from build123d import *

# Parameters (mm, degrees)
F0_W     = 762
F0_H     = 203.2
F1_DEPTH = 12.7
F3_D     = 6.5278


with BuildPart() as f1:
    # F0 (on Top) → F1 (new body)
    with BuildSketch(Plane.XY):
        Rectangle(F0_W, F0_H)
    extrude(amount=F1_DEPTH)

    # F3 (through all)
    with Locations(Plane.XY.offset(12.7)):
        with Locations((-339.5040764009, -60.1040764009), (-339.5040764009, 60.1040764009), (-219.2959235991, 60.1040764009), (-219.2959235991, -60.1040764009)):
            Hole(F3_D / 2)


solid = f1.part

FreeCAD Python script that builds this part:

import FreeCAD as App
import Part
import Sketcher
from FreeCAD import Vector
Q = App.Units.Quantity


def add_polygon(sketch, points):
    """Adds a closed chain of lines whose ends are joined by coincident constraints."""
    first, n = sketch.GeometryCount, len(points)
    for a, b in zip(points, points[1:] + points[:1]):
        sketch.addGeometry(Part.LineSegment(App.Vector(*a, 0), App.Vector(*b, 0)), False)
    for i in range(n):
        sketch.addConstraint(Sketcher.Constraint("Coincident", first + i, 2, first + (i + 1) % n, 1))

doc = App.newDocument("Part")
body = doc.addObject("PartDesign::Body", "Body")

# Sketch on XY plane
sketch1 = body.newObject("Sketcher::SketchObject", "Sketch")
sketch1.AttachmentSupport = (doc.getObject("XY_Plane"), [""])
sketch1.MapMode = "FlatFace"
add_polygon(sketch1, [(-381, 102), (-381, -102), (381, -102), (381, 102)])  # lines 0-3
sketch1.addConstraint(Sketcher.Constraint("Vertical", 0))
sketch1.addConstraint(Sketcher.Constraint("Horizontal", 1))
sketch1.addConstraint(Sketcher.Constraint("Vertical", 2))
sketch1.addConstraint(Sketcher.Constraint("Horizontal", 3))
sketch1.addConstraint(Sketcher.Constraint("Symmetric", 0, 2, 2, 2, -1, 1))
sketch1.addConstraint(Sketcher.Constraint("DistanceX", 1, 1, 1, 2, Q("30 in")))
sketch1.addConstraint(Sketcher.Constraint("DistanceY", 0, 2, 0, 1, Q("8 in")))
pad1 = body.newObject("PartDesign::Pad", "Pad")
pad1.Profile = sketch1
pad1.Length = Q("0.5 in")

# Sketch on XY plane
sketch2 = body.newObject("Sketcher::SketchObject", "Sketch001")
sketch2.AttachmentSupport = (doc.getObject("XY_Plane"), [""])
sketch2.MapMode = "FlatFace"
sketch2.AttachmentOffset = App.Placement(Vector(0, 0, 0.5 * 25.4), App.Rotation())
sketch2.addGeometry(Part.Circle(Vector(-339.5, -60.1, 0), Vector(0, 0, 1), 3.3), False)
sketch2.addGeometry(Part.Circle(Vector(-339.5, 60.1, 0), Vector(0, 0, 1), 3.3), False)
sketch2.addGeometry(Part.Circle(Vector(-219.3, 60.1, 0), Vector(0, 0, 1), 3.3), False)
sketch2.addGeometry(Part.Circle(Vector(-219.3, -60.1, 0), Vector(0, 0, 1), 3.3), False)
sketch2.addConstraint(Sketcher.Constraint("Equal", 0, 1))
sketch2.addConstraint(Sketcher.Constraint("Equal", 1, 2))
sketch2.addConstraint(Sketcher.Constraint("Equal", 2, 3))
sketch2.addConstraint(Sketcher.Constraint("Symmetric", 0, 3, 1, 3, -1))
sketch2.addConstraint(Sketcher.Constraint("Symmetric", 2, 3, 3, 3, -1))
sketch2.addConstraint(Sketcher.Constraint("Horizontal", 1, 3, 2, 3))
sketch2.addConstraint(Sketcher.Constraint("Diameter", 0, Q("0.257 in")))
sketch2.addConstraint(Sketcher.Constraint("DistanceX", 0, 3, -1, 1, Q("339.504076 mm")))
sketch2.addConstraint(Sketcher.Constraint("DistanceY", 0, 3, -1, 1, Q("60.104076 mm")))
sketch2.addConstraint(Sketcher.Constraint("DistanceX", 2, 3, -1, 1, Q("219.295924 mm")))
doc.recompute()
hole = body.newObject("PartDesign::Hole", "Hole")
hole.Profile = sketch2
hole.ThreadType = "None"
hole.Diameter = Q("0.257 in")
hole.DepthType = "ThroughAll"

doc.recompute()
